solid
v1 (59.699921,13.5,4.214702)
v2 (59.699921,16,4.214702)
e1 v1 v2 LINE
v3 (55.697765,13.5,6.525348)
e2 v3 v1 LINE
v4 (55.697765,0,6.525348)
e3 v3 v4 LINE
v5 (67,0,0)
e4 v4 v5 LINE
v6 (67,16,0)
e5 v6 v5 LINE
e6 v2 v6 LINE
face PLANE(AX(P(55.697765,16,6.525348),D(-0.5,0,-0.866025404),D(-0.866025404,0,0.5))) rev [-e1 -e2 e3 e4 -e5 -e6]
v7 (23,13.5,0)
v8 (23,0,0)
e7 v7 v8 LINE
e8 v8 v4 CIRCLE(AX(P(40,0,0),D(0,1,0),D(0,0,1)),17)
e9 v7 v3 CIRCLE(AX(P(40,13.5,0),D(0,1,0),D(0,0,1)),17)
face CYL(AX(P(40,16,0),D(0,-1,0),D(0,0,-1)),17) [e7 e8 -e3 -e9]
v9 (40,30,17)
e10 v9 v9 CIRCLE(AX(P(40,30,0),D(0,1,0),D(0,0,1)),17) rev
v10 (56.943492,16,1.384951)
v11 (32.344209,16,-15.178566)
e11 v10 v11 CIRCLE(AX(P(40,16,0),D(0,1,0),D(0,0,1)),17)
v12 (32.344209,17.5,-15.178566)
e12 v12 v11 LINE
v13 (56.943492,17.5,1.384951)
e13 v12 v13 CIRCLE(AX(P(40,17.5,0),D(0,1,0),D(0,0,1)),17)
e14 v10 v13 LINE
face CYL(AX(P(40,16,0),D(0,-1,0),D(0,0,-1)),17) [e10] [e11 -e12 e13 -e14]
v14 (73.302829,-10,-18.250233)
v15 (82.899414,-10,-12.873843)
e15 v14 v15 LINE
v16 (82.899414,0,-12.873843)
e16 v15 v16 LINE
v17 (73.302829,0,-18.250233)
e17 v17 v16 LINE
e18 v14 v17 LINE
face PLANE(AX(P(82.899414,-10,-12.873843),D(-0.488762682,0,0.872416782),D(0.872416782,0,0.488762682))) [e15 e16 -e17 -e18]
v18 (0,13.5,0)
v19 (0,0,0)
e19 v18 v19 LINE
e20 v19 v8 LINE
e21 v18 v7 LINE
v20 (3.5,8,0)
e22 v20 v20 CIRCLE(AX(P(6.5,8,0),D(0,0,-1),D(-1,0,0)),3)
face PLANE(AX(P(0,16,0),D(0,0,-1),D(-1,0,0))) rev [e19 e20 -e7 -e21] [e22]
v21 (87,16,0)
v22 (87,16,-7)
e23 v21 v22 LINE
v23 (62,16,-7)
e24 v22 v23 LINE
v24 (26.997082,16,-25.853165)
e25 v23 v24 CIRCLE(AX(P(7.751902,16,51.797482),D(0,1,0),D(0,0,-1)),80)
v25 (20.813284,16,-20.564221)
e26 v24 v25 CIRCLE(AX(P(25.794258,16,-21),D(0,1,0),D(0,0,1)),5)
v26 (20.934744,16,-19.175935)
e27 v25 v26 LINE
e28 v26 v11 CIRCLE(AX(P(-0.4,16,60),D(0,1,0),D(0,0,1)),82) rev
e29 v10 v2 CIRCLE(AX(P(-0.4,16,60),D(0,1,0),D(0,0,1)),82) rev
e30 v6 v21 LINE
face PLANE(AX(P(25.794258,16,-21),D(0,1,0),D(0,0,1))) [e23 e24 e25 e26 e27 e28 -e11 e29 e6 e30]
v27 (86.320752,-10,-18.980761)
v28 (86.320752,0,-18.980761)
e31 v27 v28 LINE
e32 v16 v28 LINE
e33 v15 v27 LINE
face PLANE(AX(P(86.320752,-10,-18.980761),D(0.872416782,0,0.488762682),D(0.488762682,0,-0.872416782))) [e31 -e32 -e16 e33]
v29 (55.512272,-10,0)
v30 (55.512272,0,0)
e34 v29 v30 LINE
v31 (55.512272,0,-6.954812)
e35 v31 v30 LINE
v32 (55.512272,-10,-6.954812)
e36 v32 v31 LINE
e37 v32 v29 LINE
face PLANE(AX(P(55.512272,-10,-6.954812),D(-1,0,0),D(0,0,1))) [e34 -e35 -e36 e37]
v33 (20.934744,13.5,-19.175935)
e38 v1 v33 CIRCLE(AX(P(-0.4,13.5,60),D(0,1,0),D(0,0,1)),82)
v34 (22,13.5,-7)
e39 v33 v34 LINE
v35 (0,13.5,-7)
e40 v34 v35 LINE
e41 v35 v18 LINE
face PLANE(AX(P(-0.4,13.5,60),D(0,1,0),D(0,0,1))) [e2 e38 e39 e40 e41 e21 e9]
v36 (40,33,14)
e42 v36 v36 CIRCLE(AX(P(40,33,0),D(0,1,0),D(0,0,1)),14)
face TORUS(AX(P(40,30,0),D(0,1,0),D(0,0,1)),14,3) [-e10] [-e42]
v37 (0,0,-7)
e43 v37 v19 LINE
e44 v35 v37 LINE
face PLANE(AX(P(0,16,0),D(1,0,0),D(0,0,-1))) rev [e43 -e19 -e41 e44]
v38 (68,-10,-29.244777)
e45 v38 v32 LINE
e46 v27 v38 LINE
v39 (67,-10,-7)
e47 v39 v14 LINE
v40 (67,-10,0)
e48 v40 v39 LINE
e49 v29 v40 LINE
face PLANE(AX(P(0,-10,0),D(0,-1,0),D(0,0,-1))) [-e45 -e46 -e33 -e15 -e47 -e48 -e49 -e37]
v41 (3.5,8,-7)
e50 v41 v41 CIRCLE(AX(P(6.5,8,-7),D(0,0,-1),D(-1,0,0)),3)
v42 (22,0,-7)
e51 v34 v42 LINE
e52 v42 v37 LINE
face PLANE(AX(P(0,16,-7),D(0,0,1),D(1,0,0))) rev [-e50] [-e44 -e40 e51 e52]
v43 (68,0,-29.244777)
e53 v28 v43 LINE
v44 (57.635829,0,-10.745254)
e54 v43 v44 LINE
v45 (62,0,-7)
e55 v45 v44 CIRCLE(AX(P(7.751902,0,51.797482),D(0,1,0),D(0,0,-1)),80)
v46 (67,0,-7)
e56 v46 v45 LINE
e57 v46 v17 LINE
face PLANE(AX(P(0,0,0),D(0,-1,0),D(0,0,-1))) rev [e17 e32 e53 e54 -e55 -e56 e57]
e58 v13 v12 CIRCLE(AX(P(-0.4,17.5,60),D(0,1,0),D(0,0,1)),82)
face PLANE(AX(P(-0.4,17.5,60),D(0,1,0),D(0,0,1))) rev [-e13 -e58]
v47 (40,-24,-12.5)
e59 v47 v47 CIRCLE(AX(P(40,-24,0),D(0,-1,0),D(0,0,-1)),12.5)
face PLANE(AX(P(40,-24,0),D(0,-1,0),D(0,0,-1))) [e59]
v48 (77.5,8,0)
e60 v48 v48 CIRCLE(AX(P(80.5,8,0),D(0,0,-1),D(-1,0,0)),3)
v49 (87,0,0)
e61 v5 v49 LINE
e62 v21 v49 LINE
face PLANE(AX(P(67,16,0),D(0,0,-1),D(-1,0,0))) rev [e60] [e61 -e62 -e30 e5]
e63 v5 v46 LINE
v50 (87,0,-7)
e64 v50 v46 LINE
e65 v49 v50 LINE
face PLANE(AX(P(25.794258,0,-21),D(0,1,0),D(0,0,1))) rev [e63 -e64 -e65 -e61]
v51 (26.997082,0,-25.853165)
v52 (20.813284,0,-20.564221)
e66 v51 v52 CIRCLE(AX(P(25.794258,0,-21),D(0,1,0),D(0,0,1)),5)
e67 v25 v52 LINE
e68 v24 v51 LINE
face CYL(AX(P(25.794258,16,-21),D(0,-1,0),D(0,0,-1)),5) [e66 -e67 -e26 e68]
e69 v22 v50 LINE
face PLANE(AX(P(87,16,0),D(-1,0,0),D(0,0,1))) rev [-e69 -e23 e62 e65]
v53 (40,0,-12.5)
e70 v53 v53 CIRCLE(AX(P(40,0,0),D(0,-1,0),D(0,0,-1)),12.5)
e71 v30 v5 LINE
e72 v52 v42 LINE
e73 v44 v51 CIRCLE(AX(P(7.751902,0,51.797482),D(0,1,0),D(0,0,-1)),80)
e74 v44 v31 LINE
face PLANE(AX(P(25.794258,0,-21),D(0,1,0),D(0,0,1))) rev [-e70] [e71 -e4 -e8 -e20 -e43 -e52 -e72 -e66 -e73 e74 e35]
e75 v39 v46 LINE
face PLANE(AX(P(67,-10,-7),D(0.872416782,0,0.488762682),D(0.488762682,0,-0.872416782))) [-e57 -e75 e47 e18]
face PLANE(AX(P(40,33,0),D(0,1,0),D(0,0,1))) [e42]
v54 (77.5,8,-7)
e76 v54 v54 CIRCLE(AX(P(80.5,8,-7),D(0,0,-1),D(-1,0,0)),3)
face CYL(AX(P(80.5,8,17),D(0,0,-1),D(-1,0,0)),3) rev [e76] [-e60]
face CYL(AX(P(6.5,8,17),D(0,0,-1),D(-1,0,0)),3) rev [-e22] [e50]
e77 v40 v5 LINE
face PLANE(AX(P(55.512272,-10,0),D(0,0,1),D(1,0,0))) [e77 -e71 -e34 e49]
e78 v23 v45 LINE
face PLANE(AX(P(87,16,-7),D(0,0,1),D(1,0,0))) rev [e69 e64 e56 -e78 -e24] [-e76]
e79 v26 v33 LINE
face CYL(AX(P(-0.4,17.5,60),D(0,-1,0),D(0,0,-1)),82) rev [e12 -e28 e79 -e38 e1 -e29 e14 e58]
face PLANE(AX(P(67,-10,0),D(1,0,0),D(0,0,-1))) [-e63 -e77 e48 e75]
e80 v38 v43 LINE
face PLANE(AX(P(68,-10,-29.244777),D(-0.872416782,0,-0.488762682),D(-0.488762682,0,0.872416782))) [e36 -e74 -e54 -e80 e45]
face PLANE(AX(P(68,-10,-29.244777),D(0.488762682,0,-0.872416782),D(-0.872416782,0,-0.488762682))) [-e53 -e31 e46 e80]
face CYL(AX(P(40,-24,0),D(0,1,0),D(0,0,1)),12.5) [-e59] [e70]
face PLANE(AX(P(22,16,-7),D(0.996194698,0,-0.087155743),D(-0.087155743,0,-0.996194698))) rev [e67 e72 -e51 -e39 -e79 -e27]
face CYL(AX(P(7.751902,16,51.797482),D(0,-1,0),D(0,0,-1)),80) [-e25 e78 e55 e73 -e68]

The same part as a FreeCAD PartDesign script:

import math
import FreeCAD as App
import Part
import Sketcher

V = App.Vector
Q = App.Units.Quantity


def edges_at(feature, points):
    """Names of the edges that pass closest to the given points."""
    edges = feature.Shape.Edges
    near = lambda p: min(range(len(edges)), key=lambda i: edges[i].distToShape(Part.Vertex(*p))[0])
    return sorted({f"Edge{near(p) + 1}" for p in points})

doc = App.newDocument("Part")
body = doc.addObject("PartDesign::Body", "Body")

sketch1 = body.newObject("Sketcher::SketchObject", "Sketch")
sketch1.AttachmentSupport = (doc.getObject("XZ_Plane"), [""])
sketch1.MapMode = "FlatFace"
sketch1.addGeometry(Part.LineSegment(V(0, 0, 0), V(23, 0, 0)), False)
sketch1.addGeometry(Part.ArcOfCircle(Part.Circle(V(40, 0, 0), V(0, 0, 1), 17), math.radians(23), math.radians(180)), False)
sketch1.addGeometry(Part.LineSegment(V(56, 7, 0), V(67, 0, 0)), False)
sketch1.addGeometry(Part.LineSegment(V(67, 0, 0), V(87, 0, 0)), False)
sketch1.addGeometry(Part.LineSegment(V(87, 0, 0), V(87, -7, 0)), False)
sketch1.addGeometry(Part.LineSegment(V(87, -7, 0), V(62, -7, 0)), False)
sketch1.addGeometry(Part.ArcOfCircle(Part.Circle(V(8, 52, 0), V(0, 0, 1), 80), math.radians(-76), math.radians(-47)), False)
sketch1.addGeometry(Part.ArcOfCircle(Part.Circle(V(26, -21, 0), V(0, 0, 1), 5), math.radians(175), math.radians(284)), False)
sketch1.addGeometry(Part.LineSegment(V(21, -21, 0), V(22, -7, 0)), False)
sketch1.addGeometry(Part.LineSegment(V(22, -7, 0), V(0, -7, 0)), False)
sketch1.addGeometry(Part.LineSegment(V(0, -7, 0), V(0, 0, 0)), False)
sketch1.addConstraint(Sketcher.Constraint("Coincident", 0, 2, 1, 2))
sketch1.addConstraint(Sketcher.Constraint("Coincident", 1, 1, 2, 1))
sketch1.addConstraint(Sketcher.Constraint("Coincident", 2, 2, 3, 1))
sketch1.addConstraint(Sketcher.Constraint("Coincident", 3, 2, 4, 1))
sketch1.addConstraint(Sketcher.Constraint("Coincident", 4, 2, 5, 1))
sketch1.addConstraint(Sketcher.Constraint("Coincident", 5, 2, 6, 2))
sketch1.addConstraint(Sketcher.Constraint("Tangent", 6, 1, 7, 2))
sketch1.addConstraint(Sketcher.Constraint("Tangent", 7, 1, 8, 1))
sketch1.addConstraint(Sketcher.Constraint("Coincident", 8, 2, 9, 1))
sketch1.addConstraint(Sketcher.Constraint("Coincident", 9, 2, 10, 1))
sketch1.addConstraint(Sketcher.Constraint("Coincident", 10, 2, 0, 1))
sketch1.addConstraint(Sketcher.Constraint("Horizontal", 0))
sketch1.addConstraint(Sketcher.Constraint("Horizontal", 3))
sketch1.addConstraint(Sketcher.Constraint("Vertical", 4))
sketch1.addConstraint(Sketcher.Constraint("Horizontal", 5))
sketch1.addConstraint(Sketcher.Constraint("Horizontal", 9))
sketch1.addConstraint(Sketcher.Constraint("Vertical", 10))
sketch1.addConstraint(Sketcher.Constraint("Coincident", 10, 2, -1, 1))
sketch1.addConstraint(Sketcher.Constraint("PointOnObject", 1, 3, -1))
sketch1.addConstraint(Sketcher.Constraint("PointOnObject", 2, 2, -1))
sketch1.addConstraint(Sketcher.Constraint("Horizontal", 5, 2, 8, 2))
sketch1.addConstraint(Sketcher.Constraint("Radius", 1, 17.0))
sketch1.addConstraint(Sketcher.Constraint("Radius", 6, 80.0))
sketch1.addConstraint(Sketcher.Constraint("Radius", 7, 5.0))
sketch1.addConstraint(Sketcher.Constraint("DistanceX", 0, 1, 0, 2, 23.0))
sketch1.addConstraint(Sketcher.Constraint("DistanceX", 3, 1, 3, 2, 20.0))
sketch1.addConstraint(Sketcher.Constraint("DistanceX", 5, 2, 5, 1, 25.0))
sketch1.addConstraint(Sketcher.Constraint("DistanceX", 9, 2, 9, 1, 22.0))
sketch1.addConstraint(Sketcher.Constraint("DistanceY", 4, 2, 4, 1, 7.0))
sketch1.addConstraint(Sketcher.Constraint("Angle", 2, Q("-30 deg")))
sketch1.addConstraint(Sketcher.Constraint("Angle", 8, Q("85 deg")))
sketch1.addConstraint(Sketcher.Constraint("DistanceY", 7, 3, -1, 1, 21.0))
sketch1.addConstraint(Sketcher.Constraint("DistanceX", -1, 1, 2, 2, 67.0))
pad1 = body.newObject("PartDesign::Pad", "Pad")
pad1.Profile = sketch1
pad1.Length = 16
pad1.Reversed = True

sketch2 = body.newObject("Sketcher::SketchObject", "Sketch001")
sketch2.AttachmentSupport = (doc.getObject("XZ_Plane"), [""])
sketch2.MapMode = "FlatFace"
sketch2.AttachmentOffset = App.Placement(V(0, 0, -16), App.Rotation())
sketch2.addGeometry(Part.Circle(V(40, 0, 0), V(0, 0, 1), 17), False)
sketch2.addConstraint(Sketcher.Constraint("PointOnObject", 0, 3, -1))
sketch2.addConstraint(Sketcher.Constraint("Diameter", 0, 34.0))
sketch2.addConstraint(Sketcher.Constraint("DistanceX", -1, 1, 0, 3, 40.0))
pad2 = body.newObject("PartDesign::Pad", "Pad001")
pad2.Profile = sketch2
pad2.Length = 17
pad2.Reversed = True

sketch3 = body.newObject("Sketcher::SketchObject", "Sketch002")
sketch3.AttachmentSupport = (doc.getObject("XZ_Plane"), [""])
sketch3.MapMode = "FlatFace"
sketch3.addGeometry(Part.Circle(V(40, 0, 0), V(0, 0, 1), 12), False)
sketch3.addConstraint(Sketcher.Constraint("PointOnObject", 0, 3, -1))
sketch3.addConstraint(Sketcher.Constraint("Diameter", 0, 25.0))
sketch3.addConstraint(Sketcher.Constraint("DistanceX", -1, 1, 0, 3, 40.0))
pad3 = body.newObject("PartDesign::Pad", "Pad002")
pad3.Profile = sketch3
pad3.Length = 24

sketch4 = body.newObject("Sketcher::SketchObject", "Sketch003")
sketch4.AttachmentSupport = (doc.getObject("XY_Plane"), [""])
sketch4.MapMode = "FlatFace"
sketch4.AttachmentOffset = App.Placement(V(0, 0, -7), App.Rotation())
sketch4.addGeometry(Part.Circle(V(80.5, 8, 0), V(0, 0, 1), 3), False)
sketch4.addGeometry(Part.Circle(V(6.5, 8, 0), V(0, 0, 1), 3), False)
sketch4.addConstraint(Sketcher.Constraint("Equal", 0, 1))
sketch4.addConstraint(Sketcher.Constraint("Horizontal", 0, 3, 1, 3))
sketch4.addConstraint(Sketcher.Constraint("Diameter", 0, 6.0))
sketch4.addConstraint(Sketcher.Constraint("DistanceY", -1, 1, 0, 3, 8.0))
sketch4.addConstraint(Sketcher.Constraint("DistanceX", 1, 3, 0, 3, 74.0))
sketch4.addConstraint(Sketcher.Constraint("DistanceX", -1, 1, 0, 3, 80.5))
pocket1 = body.newObject("PartDesign::Pocket", "Pocket")
pocket1.Profile = sketch4
pocket1.Type = "ThroughAll"
pocket1.Reversed = True

sketch5 = body.newObject("Sketcher::SketchObject", "Sketch004")
sketch5.AttachmentSupport = (doc.getObject("XZ_Plane"), [""])
sketch5.MapMode = "FlatFace"
sketch5.addGeometry(Part.LineSegment(V(67, -7, 0), V(73, -18, 0)), False)
sketch5.addGeometry(Part.LineSegment(V(73, -18, 0), V(83, -13, 0)), False)
sketch5.addGeometry(Part.LineSegment(V(83, -13, 0), V(86, -19, 0)), False)
sketch5.addGeometry(Part.LineSegment(V(86, -19, 0), V(68, -29, 0)), False)
sketch5.addGeometry(Part.LineSegment(V(68, -29, 0), V(56, -7, 0)), False)
sketch5.addGeometry(Part.LineSegment(V(56, -7, 0), V(56, 0, 0)), False)
sketch5.addGeometry(Part.LineSegment(V(56, 0, 0), V(67, 0, 0)), False)
sketch5.addGeometry(Part.LineSegment(V(67, 0, 0), V(67, -7, 0)), False)
sketch5.addConstraint(Sketcher.Constraint("Coincident", 0, 2, 1, 1))
sketch5.addConstraint(Sketcher.Constraint("Coincident", 1, 2, 2, 1))
sketch5.addConstraint(Sketcher.Constraint("Coincident", 2, 2, 3, 1))
sketch5.addConstraint(Sketcher.Constraint("Coincident", 3, 2, 4, 1))
sketch5.addConstraint(Sketcher.Constraint("Coincident", 4, 2, 5, 1))
sketch5.addConstraint(Sketcher.Constraint("Coincident", 5, 2, 6, 1))
sketch5.addConstraint(Sketcher.Constraint("Coincident", 6, 2, 7, 1))
sketch5.addConstraint(Sketcher.Constraint("Coincident", 7, 2, 0, 1))
sketch5.addConstraint(Sketcher.Constraint("Vertical", 5))
sketch5.addConstraint(Sketcher.Constraint("Horizontal", 6))
sketch5.addConstraint(Sketcher.Constraint("Vertical", 7))
sketch5.addConstraint(Sketcher.Constraint("PointOnObject", 5, 2, -1))
sketch5.addConstraint(Sketcher.Constraint("Perpendicular", 0, 1))
sketch5.addConstraint(Sketcher.Constraint("Perpendicular", 1, 2))
sketch5.addConstraint(Sketcher.Constraint("Perpendicular", 2, 3))
sketch5.addConstraint(Sketcher.Constraint("Perpendicular", 3, 4))
sketch5.addConstraint(Sketcher.Constraint("DistanceY", 7, 2, 7, 1, 7.0))
sketch5.addConstraint(Sketcher.Constraint("Distance", 1, 11.0))
sketch5.addConstraint(Sketcher.Constraint("Distance", 2, 7.0))
sketch5.addConstraint(Sketcher.Constraint("Distance", 3, 21.0))
sketch5.addConstraint(Sketcher.Constraint("DistanceX", -1, 1, 3, 2, 68.0))
sketch5.addConstraint(Sketcher.Constraint("DistanceX", -1, 1, 6, 2, 67.0))
sketch5.addConstraint(Sketcher.Constraint("DistanceY", 5, 1, 5, 2, 6.954812))
sketch5.addConstraint(Sketcher.Constraint("Distance", 0, 12.895479))
pad4 = body.newObject("PartDesign::Pad", "Pad003")
pad4.Profile = sketch5
pad4.Length = 10

sketch6 = body.newObject("Sketcher::SketchObject", "Sketch005")
sketch6.AttachmentSupport = (doc.getObject("XZ_Plane"), [""])
sketch6.MapMode = "FlatFace"
sketch6.AttachmentOffset = App.Placement(V(0, 0, -13.5), App.Rotation())
sketch6.addGeometry(Part.Circle(V(0, 60, 0), V(0, 0, 1), 82), False)
sketch6.addConstraint(Sketcher.Constraint("Diameter", 0, 164.0))
sketch6.addConstraint(Sketcher.Constraint("DistanceY", -1, 1, 0, 3, 60.0))
sketch6.addConstraint(Sketcher.Constraint("DistanceX", 0, 3, -1, 1, 0.4))
pocket2 = body.newObject("PartDesign::Pocket", "Pocket001")
pocket2.Profile = sketch6
pocket2.Length = 4
doc.recompute()

fillet = body.newObject("PartDesign::Fillet", "Fillet")
fillet.Base = (pocket2, edges_at(pocket2, [(47.656, 33, 15.179)]))
fillet.Radius = 3

doc.recompute()
